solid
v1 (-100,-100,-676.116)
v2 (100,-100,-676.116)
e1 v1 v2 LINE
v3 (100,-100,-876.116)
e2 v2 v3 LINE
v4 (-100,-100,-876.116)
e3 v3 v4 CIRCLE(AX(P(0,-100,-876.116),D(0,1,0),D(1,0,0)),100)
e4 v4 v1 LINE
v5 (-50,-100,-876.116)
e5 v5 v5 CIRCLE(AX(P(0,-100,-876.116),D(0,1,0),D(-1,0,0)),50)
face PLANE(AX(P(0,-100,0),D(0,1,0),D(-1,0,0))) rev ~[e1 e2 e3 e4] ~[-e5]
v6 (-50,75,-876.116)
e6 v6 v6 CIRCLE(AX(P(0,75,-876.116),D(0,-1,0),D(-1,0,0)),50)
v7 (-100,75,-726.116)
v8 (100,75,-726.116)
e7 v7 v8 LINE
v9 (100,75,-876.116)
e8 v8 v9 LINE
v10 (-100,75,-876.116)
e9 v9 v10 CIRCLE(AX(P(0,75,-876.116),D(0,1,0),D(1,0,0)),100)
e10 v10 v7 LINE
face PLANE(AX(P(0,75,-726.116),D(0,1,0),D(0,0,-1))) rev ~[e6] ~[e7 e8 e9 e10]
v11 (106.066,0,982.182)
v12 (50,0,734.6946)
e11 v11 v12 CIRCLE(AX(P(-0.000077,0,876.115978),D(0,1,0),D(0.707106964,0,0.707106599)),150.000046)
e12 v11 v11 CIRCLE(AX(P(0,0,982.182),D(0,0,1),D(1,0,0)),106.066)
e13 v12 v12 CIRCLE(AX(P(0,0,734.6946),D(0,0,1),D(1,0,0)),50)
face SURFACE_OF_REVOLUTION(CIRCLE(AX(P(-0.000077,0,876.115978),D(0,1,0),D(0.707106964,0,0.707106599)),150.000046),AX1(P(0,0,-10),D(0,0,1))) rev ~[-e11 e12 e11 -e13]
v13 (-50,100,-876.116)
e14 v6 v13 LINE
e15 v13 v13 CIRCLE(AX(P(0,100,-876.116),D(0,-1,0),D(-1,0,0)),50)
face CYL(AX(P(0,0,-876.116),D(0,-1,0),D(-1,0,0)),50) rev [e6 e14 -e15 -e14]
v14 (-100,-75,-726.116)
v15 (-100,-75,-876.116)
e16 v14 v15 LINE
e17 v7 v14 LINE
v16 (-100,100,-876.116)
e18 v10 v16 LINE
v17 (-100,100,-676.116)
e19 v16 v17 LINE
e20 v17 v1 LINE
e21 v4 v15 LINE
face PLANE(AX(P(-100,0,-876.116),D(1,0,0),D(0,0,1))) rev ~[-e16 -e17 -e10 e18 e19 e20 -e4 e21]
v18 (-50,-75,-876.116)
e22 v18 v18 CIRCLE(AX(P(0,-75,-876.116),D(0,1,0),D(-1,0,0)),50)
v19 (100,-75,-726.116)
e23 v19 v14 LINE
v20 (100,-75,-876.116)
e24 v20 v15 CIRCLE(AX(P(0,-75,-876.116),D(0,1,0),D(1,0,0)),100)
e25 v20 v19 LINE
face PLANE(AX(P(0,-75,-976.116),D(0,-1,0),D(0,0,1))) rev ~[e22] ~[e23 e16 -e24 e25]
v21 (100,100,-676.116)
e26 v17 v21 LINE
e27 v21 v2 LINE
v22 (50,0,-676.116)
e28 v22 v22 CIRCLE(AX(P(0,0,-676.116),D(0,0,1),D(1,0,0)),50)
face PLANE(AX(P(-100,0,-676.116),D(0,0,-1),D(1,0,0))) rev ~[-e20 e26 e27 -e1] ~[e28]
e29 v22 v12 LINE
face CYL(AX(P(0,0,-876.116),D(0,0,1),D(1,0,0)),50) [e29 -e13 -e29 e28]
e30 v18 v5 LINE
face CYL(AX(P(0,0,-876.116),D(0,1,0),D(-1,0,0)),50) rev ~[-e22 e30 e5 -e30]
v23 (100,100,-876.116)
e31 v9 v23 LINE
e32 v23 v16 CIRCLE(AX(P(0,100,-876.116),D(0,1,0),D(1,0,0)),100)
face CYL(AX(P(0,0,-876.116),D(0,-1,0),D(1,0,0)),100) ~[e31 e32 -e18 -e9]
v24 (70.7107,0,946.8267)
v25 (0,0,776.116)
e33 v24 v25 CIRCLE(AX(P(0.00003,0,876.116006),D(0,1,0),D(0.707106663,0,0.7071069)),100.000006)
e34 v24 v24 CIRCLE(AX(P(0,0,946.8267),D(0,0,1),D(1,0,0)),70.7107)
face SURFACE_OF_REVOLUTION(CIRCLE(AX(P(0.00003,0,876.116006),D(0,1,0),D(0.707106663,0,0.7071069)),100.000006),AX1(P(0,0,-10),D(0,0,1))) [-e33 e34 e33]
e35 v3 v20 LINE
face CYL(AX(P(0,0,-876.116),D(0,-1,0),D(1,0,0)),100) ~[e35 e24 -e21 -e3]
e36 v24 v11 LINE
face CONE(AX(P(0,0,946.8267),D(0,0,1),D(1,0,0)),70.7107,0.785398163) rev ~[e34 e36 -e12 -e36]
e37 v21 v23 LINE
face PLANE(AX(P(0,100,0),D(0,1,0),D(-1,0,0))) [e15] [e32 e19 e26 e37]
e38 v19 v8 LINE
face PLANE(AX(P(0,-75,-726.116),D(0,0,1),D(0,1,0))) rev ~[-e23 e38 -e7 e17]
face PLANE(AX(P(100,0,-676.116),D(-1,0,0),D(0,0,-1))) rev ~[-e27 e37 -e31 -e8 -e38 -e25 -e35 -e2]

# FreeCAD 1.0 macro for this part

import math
import FreeCAD as App
import Part
import Sketcher
from FreeCAD import Vector
Q = App.Units.Quantity

doc = App.newDocument("Part")
params = doc.addObject("Spreadsheet::Sheet", "Params")
for row, (alias, value) in enumerate([
    ("sketch1_radius", "100 mm"),
    ("sketch1_width", "50 mm"),
    ("sketch1_length", "50 mm"),
    ("revolution_angle", "360 deg"),
    ("sketch2_radius", "100 mm"),
    ("pad1_length", "200 mm"),
    ("sketch3_diameter", "100 mm"),
    ("sketch4_width", "150 mm"),
    ("sketch4_height", "250 mm"),
], start=1):
    params.set(f"A{row}", alias)
    params.set(f"B{row}", "=" + value)
    params.setAlias(f"B{row}", alias)

body = doc.addObject("PartDesign::Body", "Body")

sketch1 = body.newObject("Sketcher::SketchObject", "Sketch")
sketch1.AttachmentSupport = (doc.getObject("XZ_Plane"), [""])
sketch1.MapMode = "FlatFace"
sketch1.addGeometry([
    Part.ArcOfCircle(Part.Circle(Vector(0, 876, 0), Vector(0, 0, 1), 100), math.radians(-90), math.radians(45)),
    Part.LineSegment(Vector(71, 947, 0), Vector(106, 982, 0)),
    Part.ArcOfCircle(Part.Circle(Vector(0, 876, 0), Vector(0, 0, 1), 150), math.radians(-71), math.radians(45)),
    Part.LineSegment(Vector(50, 735, 0), Vector(50, -876, 0)),
    Part.LineSegment(Vector(50, -876, 0), Vector(0, -876, 0)),
    Part.LineSegment(Vector(0, -876, 0), Vector(0, 776, 0)),
], False)
sketch1.addConstraint([
    Sketcher.Constraint("Coincident", 0, 2, 1, 1),
    Sketcher.Constraint("Coincident", 1, 2, 2, 2),
    Sketcher.Constraint("Coincident", 2, 1, 3, 1),
    Sketcher.Constraint("Coincident", 3, 2, 4, 1),
    Sketcher.Constraint("Coincident", 4, 2, 5, 1),
    Sketcher.Constraint("Coincident", 5, 2, 0, 1),
    Sketcher.Constraint("Vertical", 3),
    Sketcher.Constraint("Horizontal", 4),
    Sketcher.Constraint("Vertical", 5),
    Sketcher.Constraint("Coincident", 2, 3, 0, 3),
    Sketcher.Constraint("PointOnObject", 0, 3, -2),
    Sketcher.Constraint("PointOnObject", 4, 2, -2),
    Sketcher.Constraint("Radius", 0, 100.0),
    Sketcher.Constraint("DistanceX", 4, 2, 4, 1, 50.0),
    Sketcher.Constraint("Angle", 1, Q("45 deg")),
    Sketcher.Constraint("Distance", 1, 50.0),
    Sketcher.Constraint("DistanceY", 3, 2, 0, 3, 1752.232),
    Sketcher.Constraint("DistanceY", -1, 1, 0, 3, 876.116),
    Sketcher.Constraint("DistanceX", -1, 1, 1, 2, 106.066),
])
sketch1.setExpression("Constraints[12]", "Params.sketch1_radius")
sketch1.setExpression("Constraints[13]", "Params.sketch1_width")
sketch1.setExpression("Constraints[15]", "Params.sketch1_length")
revolution = body.newObject("PartDesign::Revolution", "Revolution")
revolution.Profile = sketch1
revolution.ReferenceAxis = (sketch1, ["V_Axis"])
revolution.setExpression("Angle", "Params.revolution_angle")

sketch2 = body.newObject("Sketcher::SketchObject", "Sketch001")
sketch2.AttachmentSupport = (doc.getObject("XZ_Plane"), [""])
sketch2.MapMode = "FlatFace"
sketch2.addGeometry([
    Part.LineSegment(Vector(100, -676, 0), Vector(100, -876, 0)),
    Part.ArcOfCircle(Part.Circle(Vector(0, -876, 0), Vector(0, 0, 1), 100), math.radians(180), math.radians(360)),
    Part.LineSegment(Vector(-100, -876, 0), Vector(-100, -676, 0)),
    Part.LineSegment(Vector(-100, -676, 0), Vector(100, -676, 0)),
], False)
sketch2.addConstraint([
    Sketcher.Constraint("Tangent", 0, 2, 1, 2),
    Sketcher.Constraint("Tangent", 1, 1, 2, 1),
    Sketcher.Constraint("Coincident", 2, 2, 3, 1),
    Sketcher.Constraint("Coincident", 3, 2, 0, 1),
    Sketcher.Constraint("Vertical", 0),
    Sketcher.Constraint("Vertical", 2),
    Sketcher.Constraint("Horizontal", 3),
    Sketcher.Constraint("PointOnObject", 1, 3, -2),
    Sketcher.Constraint("Equal", 3, 0),
    Sketcher.Constraint("Radius", 1, 100.0),
    Sketcher.Constraint("DistanceY", 1, 3, -1, 1, 876.116),
])
sketch2.setExpression("Constraints[9]", "Params.sketch2_radius")
pad1 = body.newObject("PartDesign::Pad", "Pad")
pad1.Profile = sketch2
pad1.setExpression("Length", "Params.pad1_length")
pad1.Midplane = True

sketch3 = body.newObject("Sketcher::SketchObject", "Sketch002")
sketch3.AttachmentSupport = (doc.getObject("XZ_Plane"), [""])
sketch3.MapMode = "FlatFace"
sketch3.addGeometry(Part.Circle(Vector(0, -876, 0), Vector(0, 0, 1), 50), False)
sketch3.addConstraint([
    Sketcher.Constraint("PointOnObject", 0, 3, -2),
    Sketcher.Constraint("Diameter", 0, 100.0),
    Sketcher.Constraint("DistanceY", 0, 3, -1, 1, 876.116),
])
sketch3.setExpression("Constraints[1]", "Params.sketch3_diameter")
pocket1 = body.newObject("PartDesign::Pocket", "Pocket")
pocket1.Profile = sketch3
pocket1.Type = "ThroughAll"
pocket1.Midplane = True

sketch4 = body.newObject("Sketcher::SketchObject", "Sketch003")
sketch4.AttachmentSupport = (doc.getObject("YZ_Plane"), [""])
sketch4.MapMode = "FlatFace"
sketch4.addGeometry([
    Part.LineSegment(Vector(-75, -976, 0), Vector(75, -976, 0)),
    Part.LineSegment(Vector(75, -976, 0), Vector(75, -726, 0)),
    Part.LineSegment(Vector(75, -726, 0), Vector(-75, -726, 0)),
    Part.LineSegment(Vector(-75, -726, 0), Vector(-75, -976, 0)),
], False)
sketch4.addConstraint([
    Sketcher.Constraint("Coincident", 0, 2, 1, 1),
    Sketcher.Constraint("Coincident", 1, 2, 2, 1),
    Sketcher.Constraint("Coincident", 2, 2, 3, 1),
    Sketcher.Constraint("Coincident", 3, 2, 0, 1),
    Sketcher.Constraint("Horizontal", 0),
    Sketcher.Constraint("Vertical", 1),
    Sketcher.Constraint("Horizontal", 2),
    Sketcher.Constraint("Vertical", 3),
    Sketcher.Constraint("DistanceX", 0, 1, 0, 2, 150.0),
    Sketcher.Constraint("DistanceY", 1, 1, 1, 2, 250.0),
    Sketcher.Constraint("DistanceX", -1, 1, 0, 2, 75.0),
    Sketcher.Constraint("DistanceY", 0, 2, -1, 1, 976.116),
])
sketch4.setExpression("Constraints[8]", "Params.sketch4_width")
sketch4.setExpression("Constraints[9]", "Params.sketch4_height")
pocket2 = body.newObject("PartDesign::Pocket", "Pocket001")
pocket2.Profile = sketch4
pocket2.Type = "ThroughAll"
pocket2.Midplane = True

doc.recompute()
